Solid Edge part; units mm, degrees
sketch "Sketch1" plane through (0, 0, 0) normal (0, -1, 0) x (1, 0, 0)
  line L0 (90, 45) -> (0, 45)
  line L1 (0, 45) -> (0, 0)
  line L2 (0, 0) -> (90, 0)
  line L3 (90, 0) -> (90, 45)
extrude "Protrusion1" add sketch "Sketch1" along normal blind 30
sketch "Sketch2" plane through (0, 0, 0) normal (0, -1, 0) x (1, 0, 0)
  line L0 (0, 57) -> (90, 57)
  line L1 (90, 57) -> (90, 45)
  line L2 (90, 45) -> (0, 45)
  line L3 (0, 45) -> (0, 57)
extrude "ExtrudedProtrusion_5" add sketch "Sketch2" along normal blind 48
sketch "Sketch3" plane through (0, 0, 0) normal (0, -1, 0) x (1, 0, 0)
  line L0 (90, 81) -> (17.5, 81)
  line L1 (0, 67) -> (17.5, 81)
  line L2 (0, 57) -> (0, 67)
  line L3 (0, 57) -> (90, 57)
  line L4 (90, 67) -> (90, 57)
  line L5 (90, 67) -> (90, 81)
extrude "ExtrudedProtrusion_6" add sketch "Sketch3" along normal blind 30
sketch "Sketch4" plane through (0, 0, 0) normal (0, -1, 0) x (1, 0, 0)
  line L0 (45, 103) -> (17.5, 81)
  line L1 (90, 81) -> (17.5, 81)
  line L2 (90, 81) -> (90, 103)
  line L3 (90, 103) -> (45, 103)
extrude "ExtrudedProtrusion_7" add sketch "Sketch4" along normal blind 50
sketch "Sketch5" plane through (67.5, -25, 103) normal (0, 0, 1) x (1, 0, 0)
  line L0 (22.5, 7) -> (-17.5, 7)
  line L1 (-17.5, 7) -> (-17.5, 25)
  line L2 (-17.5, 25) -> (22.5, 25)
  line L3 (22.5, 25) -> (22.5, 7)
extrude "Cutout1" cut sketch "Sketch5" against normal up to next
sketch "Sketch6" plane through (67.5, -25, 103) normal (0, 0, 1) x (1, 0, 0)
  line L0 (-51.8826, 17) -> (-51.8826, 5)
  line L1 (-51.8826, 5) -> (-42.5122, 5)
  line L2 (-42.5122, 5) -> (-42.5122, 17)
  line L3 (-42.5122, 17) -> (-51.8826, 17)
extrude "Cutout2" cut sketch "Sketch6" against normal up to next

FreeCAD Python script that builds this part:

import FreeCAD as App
import Part
import Sketcher

V = App.Vector
Q = App.Units.Quantity

doc = App.newDocument("Part")
body = doc.addObject("PartDesign::Body", "Body")

# Sketch on XZ plane
sketch1 = body.newObject("Sketcher::SketchObject", "Sketch")
sketch1.AttachmentSupport = (doc.getObject("XZ_Plane"), [""])
sketch1.MapMode = "FlatFace"
sketch1.addGeometry([
    Part.LineSegment(V(90, 0, 0), V(90, 45, 0)),
    Part.LineSegment(V(90, 45, 0), V(0, 45, 0)),
    Part.LineSegment(V(0, 45, 0), V(0, 0, 0)),
    Part.LineSegment(V(0, 0, 0), V(90, 0, 0)),
], False)
sketch1.addConstraint([
    Sketcher.Constraint("Coincident", 0, 2, 1, 1),
    Sketcher.Constraint("Coincident", 1, 2, 2, 1),
    Sketcher.Constraint("Coincident", 2, 2, 3, 1),
    Sketcher.Constraint("Coincident", 3, 2, 0, 1),
    Sketcher.Constraint("Vertical", 0),
    Sketcher.Constraint("Horizontal", 1),
    Sketcher.Constraint("Vertical", 2),
    Sketcher.Constraint("Horizontal", 3),
    Sketcher.Constraint("Coincident", 2, 2, -1, 1),
    Sketcher.Constraint("DistanceX", 1, 2, 1, 1, Q("90 mm")),
    Sketcher.Constraint("DistanceY", 0, 1, 0, 2, Q("45 mm")),
])
pad1 = body.newObject("PartDesign::Pad", "Pad")
pad1.Profile = sketch1
pad1.Length = 30

# Sketch on XZ plane
sketch2 = body.newObject("Sketcher::SketchObject", "Sketch001")
sketch2.AttachmentSupport = (doc.getObject("XZ_Plane"), [""])
sketch2.MapMode = "FlatFace"
sketch2.addGeometry([
    Part.LineSegment(V(90, 57, 0), V(0, 57, 0)),
    Part.LineSegment(V(0, 57, 0), V(0, 45, 0)),
    Part.LineSegment(V(0, 45, 0), V(90, 45, 0)),
    Part.LineSegment(V(90, 45, 0), V(90, 57, 0)),
], False)
sketch2.addConstraint([
    Sketcher.Constraint("Coincident", 0, 2, 1, 1),
    Sketcher.Constraint("Coincident", 1, 2, 2, 1),
    Sketcher.Constraint("Coincident", 2, 2, 3, 1),
    Sketcher.Constraint("Coincident", 3, 2, 0, 1),
    Sketcher.Constraint("Horizontal", 0),
    Sketcher.Constraint("Vertical", 1),
    Sketcher.Constraint("Horizontal", 2),
    Sketcher.Constraint("Vertical", 3),
    Sketcher.Constraint("PointOnObject", 0, 2, -2),
    Sketcher.Constraint("DistanceX", 0, 2, 0, 1, Q("90 mm")),
    Sketcher.Constraint("DistanceY", 1, 2, 1, 1, Q("12 mm")),
    Sketcher.Constraint("DistanceY", -1, 1, 0, 2, Q("57 mm")),
])
pad2 = body.newObject("PartDesign::Pad", "Pad001")
pad2.Profile = sketch2
pad2.Length = 48

# Sketch on XZ plane
sketch3 = body.newObject("Sketcher::SketchObject", "Sketch002")
sketch3.AttachmentSupport = (doc.getObject("XZ_Plane"), [""])
sketch3.MapMode = "FlatFace"
sketch3.addGeometry([
    Part.LineSegment(V(90, 57, 0), V(90, 81, 0)),  # 0
    Part.LineSegment(V(90, 81, 0), V(18, 81, 0)),  # 1
    Part.LineSegment(V(18, 81, 0), V(0, 67, 0)),  # 2
    Part.LineSegment(V(0, 67, 0), V(0, 57, 0)),  # 3
    Part.LineSegment(V(0, 57, 0), V(90, 57, 0)),  # 4
], False)
sketch3.addConstraint([
    Sketcher.Constraint("Coincident", 0, 2, 1, 1),
    Sketcher.Constraint("Coincident", 1, 2, 2, 1),
    Sketcher.Constraint("Coincident", 2, 2, 3, 1),
    Sketcher.Constraint("Coincident", 3, 2, 4, 1),
    Sketcher.Constraint("Coincident", 4, 2, 0, 1),
    Sketcher.Constraint("Vertical", 0),
    Sketcher.Constraint("Horizontal", 1),
    Sketcher.Constraint("Vertical", 3),
    Sketcher.Constraint("Horizontal", 4),
    Sketcher.Constraint("PointOnObject", 2, 2, -2),
    Sketcher.Constraint("DistanceX", 4, 1, 4, 2, Q("90 mm")),
    Sketcher.Constraint("DistanceY", 0, 1, 0, 2, Q("24 mm")),
    Sketcher.Constraint("DistanceY", 3, 2, 3, 1, Q("10 mm")),
    Sketcher.Constraint("DistanceX", 1, 2, 1, 1, Q("72.5 mm")),
    Sketcher.Constraint("DistanceY", -1, 1, 0, 2, Q("81 mm")),
])
pad3 = body.newObject("PartDesign::Pad", "Pad002")
pad3.Profile = sketch3
pad3.Length = 30

# Sketch on XZ plane
sketch4 = body.newObject("Sketcher::SketchObject", "Sketch003")
sketch4.AttachmentSupport = (doc.getObject("XZ_Plane"), [""])
sketch4.MapMode = "FlatFace"
sketch4.addGeometry([
    Part.LineSegment(V(90, 103, 0), V(45, 103, 0)),
    Part.LineSegment(V(45, 103, 0), V(18, 81, 0)),
    Part.LineSegment(V(18, 81, 0), V(90, 81, 0)),
    Part.LineSegment(V(90, 81, 0), V(90, 103, 0)),
], False)
sketch4.addConstraint([
    Sketcher.Constraint("Coincident", 0, 2, 1, 1),
    Sketcher.Constraint("Coincident", 1, 2, 2, 1),
    Sketcher.Constraint("Coincident", 2, 2, 3, 1),
    Sketcher.Constraint("Coincident", 3, 2, 0, 1),
    Sketcher.Constraint("Horizontal", 0),
    Sketcher.Constraint("Horizontal", 2),
    Sketcher.Constraint("Vertical", 3),
    Sketcher.Constraint("DistanceX", 0, 2, 0, 1, Q("45 mm")),
    Sketcher.Constraint("DistanceY", 3, 1, 3, 2, Q("22 mm")),
    Sketcher.Constraint("DistanceX", 2, 1, 2, 2, Q("72.5 mm")),
    Sketcher.Constraint("DistanceX", -1, 1, 0, 2, Q("45 mm")),
    Sketcher.Constraint("DistanceY", -1, 1, 0, 2, Q("103 mm")),
])
pad4 = body.newObject("PartDesign::Pad", "Pad003")
pad4.Profile = sketch4
pad4.Length = 50

# Sketch on XY plane
sketch5 = body.newObject("Sketcher::SketchObject", "Sketch004")
sketch5.AttachmentSupport = (doc.getObject("XY_Plane"), [""])
sketch5.MapMode = "FlatFace"
sketch5.AttachmentOffset = App.Placement(V(0, 0, 103), App.Rotation())
sketch5.addGeometry([
    Part.LineSegment(V(50, -18, 0), V(90, -18, 0)),
    Part.LineSegment(V(90, -18, 0), V(90, 0, 0)),
    Part.LineSegment(V(90, 0, 0), V(50, 0, 0)),
    Part.LineSegment(V(50, 0, 0), V(50, -18, 0)),
], False)
sketch5.addConstraint([
    Sketcher.Constraint("Coincident", 0, 2, 1, 1),
    Sketcher.Constraint("Coincident", 1, 2, 2, 1),
    Sketcher.Constraint("Coincident", 2, 2, 3, 1),
    Sketcher.Constraint("Coincident", 3, 2, 0, 1),
    Sketcher.Constraint("Horizontal", 0),
    Sketcher.Constraint("Vertical", 1),
    Sketcher.Constraint("Horizontal", 2),
    Sketcher.Constraint("Vertical", 3),
    Sketcher.Constraint("PointOnObject", 1, 2, -1),
    Sketcher.Constraint("DistanceX", 0, 1, 0, 2, Q("40 mm")),
    Sketcher.Constraint("DistanceY", 1, 1, 1, 2, Q("18 mm")),
    Sketcher.Constraint("DistanceX", -1, 1, 0, 2, Q("90 mm")),
])
pocket1 = body.newObject("PartDesign::Pocket", "Pocket")
pocket1.Profile = sketch5
pocket1.Type = "UpToFirst"

# Sketch on XY plane
sketch6 = body.newObject("Sketcher::SketchObject", "Sketch005")
sketch6.AttachmentSupport = (doc.getObject("XY_Plane"), [""])
sketch6.MapMode = "FlatFace"
sketch6.AttachmentOffset = App.Placement(V(0, 0, 103), App.Rotation())
sketch6.addGeometry([
    Part.LineSegment(V(25, -8, 0), V(16, -8, 0)),
    Part.LineSegment(V(16, -8, 0), V(16, -20, 0)),
    Part.LineSegment(V(16, -20, 0), V(25, -20, 0)),
    Part.LineSegment(V(25, -20, 0), V(25, -8, 0)),
], False)
sketch6.addConstraint([
    Sketcher.Constraint("Coincident", 0, 2, 1, 1),
    Sketcher.Constraint("Coincident", 1, 2, 2, 1),
    Sketcher.Constraint("Coincident", 2, 2, 3, 1),
    Sketcher.Constraint("Coincident", 3, 2, 0, 1),
    Sketcher.Constraint("Horizontal", 0),
    Sketcher.Constraint("Vertical", 1),
    Sketcher.Constraint("Horizontal", 2),
    Sketcher.Constraint("Vertical", 3),
    Sketcher.Constraint("DistanceY", 1, 2, 1, 1, Q("12 mm")),
    Sketcher.Constraint("DistanceY", 0, 2, -1, 1, Q("8 mm")),
    Sketcher.Constraint("DistanceX", 0, 2, 0, 1, Q("9.3704 mm")),
    Sketcher.Constraint("DistanceX", -1, 1, 0, 2, Q("15.6174 mm")),
])
pocket2 = body.newObject("PartDesign::Pocket", "Pocket001")
pocket2.Profile = sketch6
pocket2.Length = 103

doc.recompute()
